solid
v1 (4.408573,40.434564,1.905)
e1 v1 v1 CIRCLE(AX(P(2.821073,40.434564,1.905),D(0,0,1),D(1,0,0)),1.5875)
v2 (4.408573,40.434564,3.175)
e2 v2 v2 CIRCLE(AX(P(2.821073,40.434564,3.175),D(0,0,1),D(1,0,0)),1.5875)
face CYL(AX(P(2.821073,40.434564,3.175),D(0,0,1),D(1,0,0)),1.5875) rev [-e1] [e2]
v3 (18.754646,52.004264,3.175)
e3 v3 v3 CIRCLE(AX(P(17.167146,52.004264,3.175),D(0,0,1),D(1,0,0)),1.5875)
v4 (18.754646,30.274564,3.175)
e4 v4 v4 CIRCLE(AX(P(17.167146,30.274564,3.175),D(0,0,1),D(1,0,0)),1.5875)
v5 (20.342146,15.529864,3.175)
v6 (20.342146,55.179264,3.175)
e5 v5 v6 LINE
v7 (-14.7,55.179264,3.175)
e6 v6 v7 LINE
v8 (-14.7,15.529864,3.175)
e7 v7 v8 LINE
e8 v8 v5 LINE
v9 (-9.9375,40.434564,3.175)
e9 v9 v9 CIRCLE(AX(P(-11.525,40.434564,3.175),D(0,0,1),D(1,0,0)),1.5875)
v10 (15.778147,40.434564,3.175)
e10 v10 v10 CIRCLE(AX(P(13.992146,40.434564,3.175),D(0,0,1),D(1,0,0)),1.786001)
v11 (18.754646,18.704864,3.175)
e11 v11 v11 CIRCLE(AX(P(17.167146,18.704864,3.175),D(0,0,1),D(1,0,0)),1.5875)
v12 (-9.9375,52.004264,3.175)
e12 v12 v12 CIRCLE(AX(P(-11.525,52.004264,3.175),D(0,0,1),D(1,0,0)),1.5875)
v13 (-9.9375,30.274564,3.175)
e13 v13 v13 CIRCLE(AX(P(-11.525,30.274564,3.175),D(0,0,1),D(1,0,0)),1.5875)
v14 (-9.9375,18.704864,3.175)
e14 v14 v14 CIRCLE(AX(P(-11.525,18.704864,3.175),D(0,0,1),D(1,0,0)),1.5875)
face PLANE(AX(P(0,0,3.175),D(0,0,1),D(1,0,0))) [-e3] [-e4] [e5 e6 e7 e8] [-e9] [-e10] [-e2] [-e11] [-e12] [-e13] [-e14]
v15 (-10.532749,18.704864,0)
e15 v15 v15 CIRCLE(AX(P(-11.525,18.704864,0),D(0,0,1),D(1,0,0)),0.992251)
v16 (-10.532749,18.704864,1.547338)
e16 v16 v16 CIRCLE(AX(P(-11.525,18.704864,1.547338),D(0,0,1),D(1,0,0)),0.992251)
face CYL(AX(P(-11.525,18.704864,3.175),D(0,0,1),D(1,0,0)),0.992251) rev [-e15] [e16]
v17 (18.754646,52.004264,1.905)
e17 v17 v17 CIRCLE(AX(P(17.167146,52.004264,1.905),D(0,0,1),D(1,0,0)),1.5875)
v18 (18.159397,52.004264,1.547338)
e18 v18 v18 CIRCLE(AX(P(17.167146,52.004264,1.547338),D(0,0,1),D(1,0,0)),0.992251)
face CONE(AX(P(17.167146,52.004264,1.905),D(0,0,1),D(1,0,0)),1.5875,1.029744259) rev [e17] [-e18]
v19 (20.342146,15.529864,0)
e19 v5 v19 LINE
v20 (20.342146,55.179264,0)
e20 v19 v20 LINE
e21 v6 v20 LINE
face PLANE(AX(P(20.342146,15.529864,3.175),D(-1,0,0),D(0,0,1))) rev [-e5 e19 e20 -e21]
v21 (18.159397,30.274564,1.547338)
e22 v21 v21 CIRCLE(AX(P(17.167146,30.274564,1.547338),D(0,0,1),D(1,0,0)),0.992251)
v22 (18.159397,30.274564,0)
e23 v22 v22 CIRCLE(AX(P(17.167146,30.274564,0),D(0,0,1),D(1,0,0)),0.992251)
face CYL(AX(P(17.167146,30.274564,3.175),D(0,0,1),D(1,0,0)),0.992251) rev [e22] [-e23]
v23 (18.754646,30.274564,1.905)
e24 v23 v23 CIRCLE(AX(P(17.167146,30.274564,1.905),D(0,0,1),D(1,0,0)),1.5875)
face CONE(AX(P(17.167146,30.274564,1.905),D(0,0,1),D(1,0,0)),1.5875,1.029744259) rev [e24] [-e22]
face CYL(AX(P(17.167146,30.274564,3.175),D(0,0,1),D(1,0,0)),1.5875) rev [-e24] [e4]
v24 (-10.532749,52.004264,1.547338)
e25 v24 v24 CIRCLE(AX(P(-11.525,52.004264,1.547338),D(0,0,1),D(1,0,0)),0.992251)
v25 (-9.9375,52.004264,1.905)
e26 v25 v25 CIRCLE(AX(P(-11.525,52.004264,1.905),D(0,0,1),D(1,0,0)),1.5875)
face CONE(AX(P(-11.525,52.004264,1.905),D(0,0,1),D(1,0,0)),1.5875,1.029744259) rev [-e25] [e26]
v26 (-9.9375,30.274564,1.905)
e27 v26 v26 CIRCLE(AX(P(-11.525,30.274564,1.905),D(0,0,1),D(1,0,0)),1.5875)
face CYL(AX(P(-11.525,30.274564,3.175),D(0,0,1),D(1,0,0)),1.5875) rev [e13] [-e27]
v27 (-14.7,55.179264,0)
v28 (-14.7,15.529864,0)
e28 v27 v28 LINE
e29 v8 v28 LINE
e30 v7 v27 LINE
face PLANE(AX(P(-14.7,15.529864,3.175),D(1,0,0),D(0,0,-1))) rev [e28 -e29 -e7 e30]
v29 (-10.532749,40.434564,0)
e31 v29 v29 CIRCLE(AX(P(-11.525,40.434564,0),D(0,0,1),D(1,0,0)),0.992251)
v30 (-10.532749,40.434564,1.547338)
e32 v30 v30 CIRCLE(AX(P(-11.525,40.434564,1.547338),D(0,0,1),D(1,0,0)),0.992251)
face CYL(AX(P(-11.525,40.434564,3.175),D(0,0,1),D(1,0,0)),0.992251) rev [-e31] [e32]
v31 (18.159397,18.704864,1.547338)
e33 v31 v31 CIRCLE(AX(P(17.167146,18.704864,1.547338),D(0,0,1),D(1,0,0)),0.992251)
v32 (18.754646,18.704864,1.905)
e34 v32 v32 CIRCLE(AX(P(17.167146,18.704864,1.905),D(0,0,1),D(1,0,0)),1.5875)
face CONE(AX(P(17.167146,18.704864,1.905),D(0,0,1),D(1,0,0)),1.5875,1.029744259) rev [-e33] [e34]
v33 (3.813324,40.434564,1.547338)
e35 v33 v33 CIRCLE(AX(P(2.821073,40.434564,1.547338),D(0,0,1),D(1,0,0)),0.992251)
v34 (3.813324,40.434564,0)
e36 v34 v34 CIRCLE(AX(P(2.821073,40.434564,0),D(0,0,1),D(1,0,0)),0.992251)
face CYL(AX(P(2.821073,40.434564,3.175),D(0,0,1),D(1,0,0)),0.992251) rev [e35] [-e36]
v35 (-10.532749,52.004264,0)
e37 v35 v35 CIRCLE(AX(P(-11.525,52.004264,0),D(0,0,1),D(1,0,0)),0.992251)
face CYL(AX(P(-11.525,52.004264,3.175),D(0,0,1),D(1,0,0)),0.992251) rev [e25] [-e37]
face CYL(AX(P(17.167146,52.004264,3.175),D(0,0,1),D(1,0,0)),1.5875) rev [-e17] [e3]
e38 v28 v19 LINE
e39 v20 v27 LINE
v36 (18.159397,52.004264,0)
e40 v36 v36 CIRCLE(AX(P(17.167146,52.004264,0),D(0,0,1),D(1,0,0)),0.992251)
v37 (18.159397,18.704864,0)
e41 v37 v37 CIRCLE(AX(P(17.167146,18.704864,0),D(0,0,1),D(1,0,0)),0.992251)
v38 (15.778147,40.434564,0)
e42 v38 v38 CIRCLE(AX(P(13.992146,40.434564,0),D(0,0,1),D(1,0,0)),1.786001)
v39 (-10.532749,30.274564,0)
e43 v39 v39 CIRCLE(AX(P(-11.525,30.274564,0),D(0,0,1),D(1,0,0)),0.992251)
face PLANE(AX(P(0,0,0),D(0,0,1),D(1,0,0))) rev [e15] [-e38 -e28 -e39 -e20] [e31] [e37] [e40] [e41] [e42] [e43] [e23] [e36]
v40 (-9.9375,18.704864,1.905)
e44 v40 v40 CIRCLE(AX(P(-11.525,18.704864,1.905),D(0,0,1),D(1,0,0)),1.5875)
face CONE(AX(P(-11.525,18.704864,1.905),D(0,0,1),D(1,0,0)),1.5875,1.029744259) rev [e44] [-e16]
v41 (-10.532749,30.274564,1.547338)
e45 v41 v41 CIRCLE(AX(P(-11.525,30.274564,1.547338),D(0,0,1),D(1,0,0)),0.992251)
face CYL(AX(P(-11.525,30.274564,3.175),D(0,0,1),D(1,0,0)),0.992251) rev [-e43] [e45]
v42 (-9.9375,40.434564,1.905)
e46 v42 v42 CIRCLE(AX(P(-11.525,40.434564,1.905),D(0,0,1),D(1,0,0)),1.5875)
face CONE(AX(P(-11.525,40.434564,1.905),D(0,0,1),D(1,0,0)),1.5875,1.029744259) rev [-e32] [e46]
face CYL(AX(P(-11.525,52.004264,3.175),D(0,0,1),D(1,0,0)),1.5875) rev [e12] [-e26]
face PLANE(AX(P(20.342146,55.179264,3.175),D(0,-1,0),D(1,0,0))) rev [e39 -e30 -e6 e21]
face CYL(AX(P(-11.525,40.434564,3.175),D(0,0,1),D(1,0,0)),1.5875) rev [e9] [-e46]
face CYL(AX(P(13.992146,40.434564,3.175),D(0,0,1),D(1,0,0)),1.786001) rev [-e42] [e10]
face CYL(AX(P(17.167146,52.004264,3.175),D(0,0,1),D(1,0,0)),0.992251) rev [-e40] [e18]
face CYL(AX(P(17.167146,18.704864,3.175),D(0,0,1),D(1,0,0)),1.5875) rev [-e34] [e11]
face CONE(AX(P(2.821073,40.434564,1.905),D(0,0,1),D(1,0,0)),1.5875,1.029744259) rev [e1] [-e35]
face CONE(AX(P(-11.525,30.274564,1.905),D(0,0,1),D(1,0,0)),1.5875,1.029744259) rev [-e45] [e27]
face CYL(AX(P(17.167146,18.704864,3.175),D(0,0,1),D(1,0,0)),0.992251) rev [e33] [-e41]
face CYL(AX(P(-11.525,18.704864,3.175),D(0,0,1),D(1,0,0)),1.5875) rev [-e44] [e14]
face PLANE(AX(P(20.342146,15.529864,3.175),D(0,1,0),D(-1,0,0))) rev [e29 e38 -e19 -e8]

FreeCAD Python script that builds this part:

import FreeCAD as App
import Part
import Sketcher
Q = App.Units.Quantity


def add_polygon(sketch, points):
    """Adds a closed chain of lines whose ends are joined by coincident constraints."""
    first, n = sketch.GeometryCount, len(points)
    for a, b in zip(points, points[1:] + points[:1]):
        sketch.addGeometry(Part.LineSegment(App.Vector(*a, 0), App.Vector(*b, 0)), False)
    for i in range(n):
        sketch.addConstraint(Sketcher.Constraint("Coincident", first + i, 2, first + (i + 1) % n, 1))

doc = App.newDocument("Part")
body = doc.addObject("PartDesign::Body", "Body")

# Sketch on XY plane
sketch1 = doc.addObject("Sketcher::SketchObject", "Sketch")
body.addObject(sketch1)
sketch1.AttachmentSupport = (doc.XY_Plane, [""])
sketch1.MapMode = "FlatFace"
add_polygon(sketch1, [(-15, 55), (-15, 16), (20, 16), (20, 55)])  # lines 0-3
sketch1.addConstraint(Sketcher.Constraint("Vertical", 0))
sketch1.addConstraint(Sketcher.Constraint("Horizontal", 1))
sketch1.addConstraint(Sketcher.Constraint("Vertical", 2))
sketch1.addConstraint(Sketcher.Constraint("Horizontal", 3))
sketch1.addConstraint(Sketcher.Constraint("DistanceY", 0, 2, 0, 1, Q("1.561 in")))
sketch1.addConstraint(Sketcher.Constraint("DistanceX", 0, 2, -1, 1, 14.7))
sketch1.addConstraint(Sketcher.Constraint("DistanceX", 1, 1, 1, 2, 35.042146))
sketch1.addConstraint(Sketcher.Constraint("DistanceY", -1, 1, 0, 2, 15.529864))
pad1 = doc.addObject("PartDesign::Pad", "Pad")
body.addObject(pad1)
pad1.Profile = sketch1
pad1.Length = Q("0.125 in")

# Sketch on XY plane
sketch2 = doc.addObject("Sketcher::SketchObject", "Sketch001")
body.addObject(sketch2)
sketch2.AttachmentSupport = (doc.XY_Plane, [""])
sketch2.MapMode = "FlatFace"
sketch2.AttachmentOffset = App.Placement(App.Vector(0, 0, 0.125 * 25.4), App.Rotation())
sketch2.addGeometry(Part.Circle(App.Vector(14, 40.4, 0), App.Vector(0, 0, 1), 1.8), False)
sketch2.addConstraint(Sketcher.Constraint("Diameter", 0, 3.572002))
sketch2.addConstraint(Sketcher.Constraint("DistanceX", -1, 1, 0, 3, 13.992146))
sketch2.addConstraint(Sketcher.Constraint("DistanceY", -1, 1, 0, 3, 40.434564))
doc.recompute()
hole = doc.addObject("PartDesign::Hole", "Hole")
body.addObject(hole)
hole.Profile = sketch2
hole.ThreadType = "None"
hole.Diameter = 3.572002
hole.DepthType = "ThroughAll"

# Sketch on XY plane
sketch3 = doc.addObject("Sketcher::SketchObject", "Sketch002")
body.addObject(sketch3)
sketch3.AttachmentSupport = (doc.XY_Plane, [""])
sketch3.MapMode = "FlatFace"
sketch3.AttachmentOffset = App.Placement(App.Vector(0, 0, 0.125 * 25.4), App.Rotation())
sketch3.addGeometry(Part.Circle(App.Vector(-11.5, 40.4, 0), App.Vector(0, 0, 1), 1), False)
sketch3.addGeometry(Part.Circle(App.Vector(-11.5, 52, 0), App.Vector(0, 0, 1), 1), False)
sketch3.addGeometry(Part.Circle(App.Vector(17.2, 52, 0), App.Vector(0, 0, 1), 1), False)
sketch3.addGeometry(Part.Circle(App.Vector(2.8, 40.4, 0), App.Vector(0, 0, 1), 1), False)
sketch3.addGeometry(Part.Circle(App.Vector(-11.5, 30.3, 0), App.Vector(0, 0, 1), 1), False)
sketch3.addGeometry(Part.Circle(App.Vector(-11.5, 18.7, 0), App.Vector(0, 0, 1), 1), False)
sketch3.addGeometry(Part.Circle(App.Vector(17.2, 18.7, 0), App.Vector(0, 0, 1), 1), False)
sketch3.addGeometry(Part.Circle(App.Vector(17.2, 30.3, 0), App.Vector(0, 0, 1), 1), False)
sketch3.addConstraint(Sketcher.Constraint("Equal", 0, 1))
sketch3.addConstraint(Sketcher.Constraint("Equal", 1, 2))
sketch3.addConstraint(Sketcher.Constraint("Equal", 2, 3))
sketch3.addConstraint(Sketcher.Constraint("Equal", 3, 4))
sketch3.addConstraint(Sketcher.Constraint("Equal", 4, 5))
sketch3.addConstraint(Sketcher.Constraint("Equal", 5, 6))
sketch3.addConstraint(Sketcher.Constraint("Equal", 6, 7))
sketch3.addConstraint(Sketcher.Constraint("Horizontal", 1, 3, 2, 3))
sketch3.addConstraint(Sketcher.Constraint("Horizontal", 0, 3, 3, 3))
sketch3.addConstraint(Sketcher.Constraint("Horizontal", 5, 3, 6, 3))
sketch3.addConstraint(Sketcher.Constraint("Horizontal", 4, 3, 7, 3))
sketch3.addConstraint(Sketcher.Constraint("Vertical", 0, 3, 1, 3))
sketch3.addConstraint(Sketcher.Constraint("Vertical", 1, 3, 4, 3))
sketch3.addConstraint(Sketcher.Constraint("Vertical", 4, 3, 5, 3))
sketch3.addConstraint(Sketcher.Constraint("Vertical", 2, 3, 6, 3))
sketch3.addConstraint(Sketcher.Constraint("Vertical", 6, 3, 7, 3))
sketch3.addConstraint(Sketcher.Constraint("DistanceY", 4, 3, 0, 3, Q("0.4 in")))
sketch3.addConstraint(Sketcher.Constraint("DistanceY", 5, 3, 1, 3, Q("1.311 in")))
sketch3.addConstraint(Sketcher.Constraint("Diameter", 0, 1.984502))
sketch3.addConstraint(Sketcher.Constraint("DistanceY", 0, 3, 1, 3, Q("0.4555 in")))
sketch3.addConstraint(Sketcher.Constraint("DistanceX", 0, 3, -1, 1, 11.525))
sketch3.addConstraint(Sketcher.Constraint("DistanceY", -1, 1, 0, 3, 40.434564))
sketch3.addConstraint(Sketcher.Constraint("DistanceX", -1, 1, 2, 3, 17.167146))
sketch3.addConstraint(Sketcher.Constraint("DistanceX", -1, 1, 3, 3, 2.821073))
doc.recompute()
hole2 = doc.addObject("PartDesign::Hole", "Hole001")
body.addObject(hole2)
hole2.Profile = sketch3
hole2.ThreadType = "None"
hole2.Diameter = 1.984502
hole2.DepthType = "ThroughAll"

# Sketch on XY plane
sketch4 = doc.addObject("Sketcher::SketchObject", "Sketch003")
body.addObject(sketch4)
sketch4.AttachmentSupport = (doc.XY_Plane, [""])
sketch4.MapMode = "FlatFace"
sketch4.AttachmentOffset = App.Placement(App.Vector(0, 0, 0.125 * 25.4), App.Rotation())
sketch4.addGeometry(Part.Circle(App.Vector(17.2, 18.7, 0), App.Vector(0, 0, 1), 1.6), False)
sketch4.addGeometry(Part.Circle(App.Vector(-11.5, 18.7, 0), App.Vector(0, 0, 1), 1.6), False)
sketch4.addGeometry(Part.Circle(App.Vector(-11.5, 30.3, 0), App.Vector(0, 0, 1), 1.6), False)
sketch4.addGeometry(Part.Circle(App.Vector(17.2, 30.3, 0), App.Vector(0, 0, 1), 1.6), False)
sketch4.addGeometry(Part.Circle(App.Vector(2.8, 40.4, 0), App.Vector(0, 0, 1), 1.6), False)
sketch4.addGeometry(Part.Circle(App.Vector(-11.5, 40.4, 0), App.Vector(0, 0, 1), 1.6), False)
sketch4.addGeometry(Part.Circle(App.Vector(17.2, 52, 0), App.Vector(0, 0, 1), 1.6), False)
sketch4.addGeometry(Part.Circle(App.Vector(-11.5, 52, 0), App.Vector(0, 0, 1), 1.6), False)
sketch4.addConstraint(Sketcher.Constraint("Equal", 0, 1))
sketch4.addConstraint(Sketcher.Constraint("Equal", 1, 2))
sketch4.addConstraint(Sketcher.Constraint("Equal", 2, 3))
sketch4.addConstraint(Sketcher.Constraint("Equal", 3, 4))
sketch4.addConstraint(Sketcher.Constraint("Equal", 4, 5))
sketch4.addConstraint(Sketcher.Constraint("Equal", 5, 6))
sketch4.addConstraint(Sketcher.Constraint("Equal", 6, 7))
sketch4.addConstraint(Sketcher.Constraint("Horizontal", 0, 3, 1, 3))
sketch4.addConstraint(Sketcher.Constraint("Horizontal", 2, 3, 3, 3))
sketch4.addConstraint(Sketcher.Constraint("Horizontal", 4, 3, 5, 3))
sketch4.addConstraint(Sketcher.Constraint("Horizontal", 6, 3, 7, 3))
sketch4.addConstraint(Sketcher.Constraint("Vertical", 1, 3, 2, 3))
sketch4.addConstraint(Sketcher.Constraint("Vertical", 0, 3, 3, 3))
sketch4.addConstraint(Sketcher.Constraint("Vertical", 2, 3, 5, 3))
sketch4.addConstraint(Sketcher.Constraint("Vertical", 3, 3, 6, 3))
sketch4.addConstraint(Sketcher.Constraint("Vertical", 5, 3, 7, 3))
sketch4.addConstraint(Sketcher.Constraint("Diameter", 0, Q("0.125 in")))
sketch4.addConstraint(Sketcher.Constraint("DistanceY", 3, 3, 4, 3, Q("0.4 in")))
sketch4.addConstraint(Sketcher.Constraint("DistanceY", 0, 3, 6, 3, Q("1.311 in")))
sketch4.addConstraint(Sketcher.Constraint("DistanceY", 1, 3, 2, 3, Q("0.4555 in")))
sketch4.addConstraint(Sketcher.Constraint("DistanceX", 1, 3, -1, 1, 11.525))
sketch4.addConstraint(Sketcher.Constraint("DistanceX", -1, 1, 0, 3, 17.167146))
sketch4.addConstraint(Sketcher.Constraint("DistanceY", -1, 1, 0, 3, 18.704864))
sketch4.addConstraint(Sketcher.Constraint("DistanceX", -1, 1, 4, 3, 2.821073))
doc.recompute()
hole3 = doc.addObject("PartDesign::Hole", "Hole002")
body.addObject(hole3)
hole3.Profile = sketch4
hole3.ThreadType = "None"
hole3.Diameter = Q("0.125 in")
hole3.DepthType = "Dimension"
hole3.Depth = Q("0.05 in")
hole3.DrillPoint = "Angled"
hole3.DrillPointAngle = 118

doc.recompute()
